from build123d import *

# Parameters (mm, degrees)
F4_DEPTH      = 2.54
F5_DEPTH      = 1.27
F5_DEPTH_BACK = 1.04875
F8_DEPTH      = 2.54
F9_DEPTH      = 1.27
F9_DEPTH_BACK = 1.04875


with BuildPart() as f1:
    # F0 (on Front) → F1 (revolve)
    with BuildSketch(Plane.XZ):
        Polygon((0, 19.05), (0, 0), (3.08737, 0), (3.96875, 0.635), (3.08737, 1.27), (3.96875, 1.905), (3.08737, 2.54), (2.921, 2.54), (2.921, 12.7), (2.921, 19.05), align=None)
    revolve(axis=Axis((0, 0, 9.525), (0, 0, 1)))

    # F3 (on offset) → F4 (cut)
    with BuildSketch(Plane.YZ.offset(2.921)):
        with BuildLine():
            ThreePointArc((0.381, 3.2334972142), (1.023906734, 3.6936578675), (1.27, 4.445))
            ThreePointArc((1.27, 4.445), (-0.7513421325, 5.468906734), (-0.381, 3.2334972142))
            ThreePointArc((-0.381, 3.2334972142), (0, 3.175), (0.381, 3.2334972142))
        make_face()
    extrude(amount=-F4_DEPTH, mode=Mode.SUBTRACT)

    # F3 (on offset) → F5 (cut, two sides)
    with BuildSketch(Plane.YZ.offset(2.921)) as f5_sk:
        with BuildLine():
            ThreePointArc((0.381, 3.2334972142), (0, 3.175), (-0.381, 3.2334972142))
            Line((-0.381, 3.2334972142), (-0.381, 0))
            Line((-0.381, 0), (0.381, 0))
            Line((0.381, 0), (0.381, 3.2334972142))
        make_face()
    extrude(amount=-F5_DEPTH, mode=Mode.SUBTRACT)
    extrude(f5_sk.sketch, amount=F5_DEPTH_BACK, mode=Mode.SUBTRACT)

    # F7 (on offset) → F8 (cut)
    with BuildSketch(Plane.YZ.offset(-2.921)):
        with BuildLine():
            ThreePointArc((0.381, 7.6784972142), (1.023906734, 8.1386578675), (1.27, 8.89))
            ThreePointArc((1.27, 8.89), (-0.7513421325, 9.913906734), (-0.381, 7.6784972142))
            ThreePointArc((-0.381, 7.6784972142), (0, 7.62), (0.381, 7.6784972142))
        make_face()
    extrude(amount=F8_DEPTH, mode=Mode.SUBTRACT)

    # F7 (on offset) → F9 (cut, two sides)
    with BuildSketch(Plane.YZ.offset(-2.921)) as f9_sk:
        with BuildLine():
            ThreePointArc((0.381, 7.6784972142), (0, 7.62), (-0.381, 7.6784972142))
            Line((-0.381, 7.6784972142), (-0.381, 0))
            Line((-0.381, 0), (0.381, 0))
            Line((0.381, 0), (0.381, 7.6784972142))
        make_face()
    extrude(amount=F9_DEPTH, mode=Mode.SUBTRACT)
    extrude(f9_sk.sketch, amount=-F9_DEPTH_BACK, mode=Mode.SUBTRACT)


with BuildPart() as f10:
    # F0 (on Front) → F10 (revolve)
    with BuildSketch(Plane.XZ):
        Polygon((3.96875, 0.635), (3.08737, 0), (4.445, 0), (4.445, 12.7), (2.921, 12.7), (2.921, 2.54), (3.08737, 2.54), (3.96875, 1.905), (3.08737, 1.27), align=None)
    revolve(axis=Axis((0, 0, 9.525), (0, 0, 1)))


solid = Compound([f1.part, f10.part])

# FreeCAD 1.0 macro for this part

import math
import FreeCAD as App
import Part
import Sketcher
from FreeCAD import Vector
Q = App.Units.Quantity

doc = App.newDocument("Part")
body = doc.addObject("PartDesign::Body", "Body")

sketch1 = doc.addObject("Sketcher::SketchObject", "Sketch")
body.addObject(sketch1)
sketch1.AttachmentSupport = (doc.XZ_Plane, [""])
sketch1.MapMode = "FlatFace"
sketch1.addGeometry([
    Part.LineSegment(Vector(0, 19.05, 0), Vector(0, 0, 0)),
    Part.LineSegment(Vector(0, 0, 0), Vector(3.09, 0, 0)),
    Part.LineSegment(Vector(3.09, 0, 0), Vector(3.97, 0.64, 0)),
    Part.LineSegment(Vector(3.97, 0.64, 0), Vector(3.09, 1.27, 0)),
    Part.LineSegment(Vector(3.09, 1.27, 0), Vector(3.97, 1.91, 0)),
    Part.LineSegment(Vector(3.97, 1.91, 0), Vector(3.09, 2.54, 0)),
    Part.LineSegment(Vector(3.09, 2.54, 0), Vector(2.92, 2.54, 0)),
    Part.LineSegment(Vector(2.92, 2.54, 0), Vector(2.92, 19.05, 0)),
    Part.LineSegment(Vector(2.92, 19.05, 0), Vector(0, 19.05, 0)),
], False)
sketch1.addConstraint([
    Sketcher.Constraint("Coincident", 0, 2, 1, 1),
    Sketcher.Constraint("Coincident", 1, 2, 2, 1),
    Sketcher.Constraint("Coincident", 2, 2, 3, 1),
    Sketcher.Constraint("Coincident", 3, 2, 4, 1),
    Sketcher.Constraint("Coincident", 4, 2, 5, 1),
    Sketcher.Constraint("Coincident", 5, 2, 6, 1),
    Sketcher.Constraint("Coincident", 6, 2, 7, 1),
    Sketcher.Constraint("Coincident", 7, 2, 8, 1),
    Sketcher.Constraint("Coincident", 8, 2, 0, 1),
    Sketcher.Constraint("Vertical", 0),
    Sketcher.Constraint("Horizontal", 1),
    Sketcher.Constraint("Horizontal", 6),
    Sketcher.Constraint("Vertical", 7),
    Sketcher.Constraint("Horizontal", 8),
    Sketcher.Constraint("Coincident", 0, 2, -1, 1),
    Sketcher.Constraint("Parallel", 2, 4),
    Sketcher.Constraint("Parallel", 3, 5),
    Sketcher.Constraint("Vertical", 1, 2, 3, 2),
    Sketcher.Constraint("Vertical", 2, 2, 4, 2),
    Sketcher.Constraint("Vertical", 3, 2, 5, 2),
    Sketcher.Constraint("Equal", 2, 3),
    Sketcher.Constraint("DistanceY", 0, 2, 0, 1, Q("0.75 in")),
    Sketcher.Constraint("DistanceY", 7, 1, 7, 2, Q("0.65 in")),
    Sketcher.Constraint("DistanceX", 8, 2, 8, 1, Q("0.115 in")),
    Sketcher.Constraint("DistanceX", -1, 1, 2, 2, Q("0.15625 in")),
    Sketcher.Constraint("DistanceX", 1, 2, 2, 2, Q("0.0347 in")),
])
revolution = doc.addObject("PartDesign::Revolution", "Revolution")
body.addObject(revolution)
revolution.Profile = sketch1
revolution.ReferenceAxis = (sketch1, ["V_Axis"])
revolution.Angle = 360

sketch2 = doc.addObject("Sketcher::SketchObject", "Sketch001")
body.addObject(sketch2)
sketch2.AttachmentSupport = (doc.YZ_Plane, [""])
sketch2.MapMode = "FlatFace"
sketch2.AttachmentOffset = App.Placement(Vector(0, 0, 0.115 * 25.4), App.Rotation())
sketch2.addGeometry([
    Part.ArcOfCircle(Part.Circle(Vector(0, 4.4, 0), Vector(0, 0, 1), 1.3), math.radians(-73), math.radians(253)),
    Part.ArcOfCircle(Part.Circle(Vector(0, 4.4, 0), Vector(0, 0, 1), 1.3), math.radians(-107), math.radians(-73)),
], False)
sketch2.addConstraint([
    Sketcher.Constraint("Tangent", 0, 1, 1, 2),
    Sketcher.Constraint("Coincident", 1, 1, 0, 2),
    Sketcher.Constraint("Symmetric", 0, 1, 1, 1, -2),
    Sketcher.Constraint("Radius", 0, Q("0.05 in")),
    Sketcher.Constraint("DistanceX", 1, 1, 0, 1, Q("0.03 in")),
    Sketcher.Constraint("DistanceY", -1, 1, 0, 3, Q("0.175 in")),
])
pocket1 = doc.addObject("PartDesign::Pocket", "Pocket")
body.addObject(pocket1)
pocket1.Profile = sketch2
pocket1.Length = Q("0.1 in")

sketch3 = doc.addObject("Sketcher::SketchObject", "Sketch002")
body.addObject(sketch3)
sketch3.AttachmentSupport = (doc.YZ_Plane, [""])
sketch3.MapMode = "FlatFace"
sketch3.AttachmentOffset = App.Placement(Vector(0, 0, 0.115 * 25.4), App.Rotation())
sketch3.addGeometry([
    Part.ArcOfCircle(Part.Circle(Vector(0, 4.4, 0), Vector(0, 0, 1), 1.3), math.radians(-107), math.radians(-73)),
    Part.LineSegment(Vector(-0.4, 3.2, 0), Vector(-0.4, 0, 0)),
    Part.LineSegment(Vector(-0.4, 0, 0), Vector(0.4, 0, 0)),
    Part.LineSegment(Vector(0.4, 0, 0), Vector(0.4, 3.2, 0)),
], False)
sketch3.addConstraint([
    Sketcher.Constraint("Coincident", 0, 1, 1, 1),
    Sketcher.Constraint("Coincident", 1, 2, 2, 1),
    Sketcher.Constraint("Coincident", 2, 2, 3, 1),
    Sketcher.Constraint("Coincident", 3, 2, 0, 2),
    Sketcher.Constraint("Vertical", 1),
    Sketcher.Constraint("Horizontal", 2),
    Sketcher.Constraint("Vertical", 3),
    Sketcher.Constraint("Symmetric", 1, 2, 2, 2, -1, 1),
    Sketcher.Constraint("PointOnObject", 0, 3, -2),
    Sketcher.Constraint("Radius", 0, Q("0.05 in")),
    Sketcher.Constraint("DistanceX", 2, 1, 2, 2, Q("0.03 in")),
    Sketcher.Constraint("DistanceY", -1, 1, 0, 3, Q("0.175 in")),
])
pocket2 = doc.addObject("PartDesign::Pocket", "Pocket001")
body.addObject(pocket2)
pocket2.Profile = sketch3
pocket2.Type = "TwoLengths"
pocket2.Length = Q("0.05 in")
pocket2.Length2 = 1.04875

sketch4 = doc.addObject("Sketcher::SketchObject", "Sketch003")
body.addObject(sketch4)
sketch4.AttachmentSupport = (doc.YZ_Plane, [""])
sketch4.MapMode = "FlatFace"
sketch4.AttachmentOffset = App.Placement(Vector(0, 0, -0.115 * 25.4), App.Rotation())
sketch4.addGeometry([
    Part.ArcOfCircle(Part.Circle(Vector(0, 8.9, 0), Vector(0, 0, 1), 1.3), math.radians(-73), math.radians(253)),
    Part.ArcOfCircle(Part.Circle(Vector(0, 8.9, 0), Vector(0, 0, 1), 1.3), math.radians(-107), math.radians(-73)),
], False)
sketch4.addConstraint([
    Sketcher.Constraint("Tangent", 0, 1, 1, 2),
    Sketcher.Constraint("Coincident", 1, 1, 0, 2),
    Sketcher.Constraint("Symmetric", 0, 1, 1, 1, -2),
    Sketcher.Constraint("Radius", 0, Q("0.05 in")),
    Sketcher.Constraint("DistanceY", -1, 1, 0, 3, Q("0.35 in")),
    Sketcher.Constraint("DistanceX", 1, 1, 0, 1, Q("0.03 in")),
])
pocket3 = doc.addObject("PartDesign::Pocket", "Pocket002")
body.addObject(pocket3)
pocket3.Profile = sketch4
pocket3.Length = Q("0.1 in")
pocket3.Reversed = True

sketch5 = doc.addObject("Sketcher::SketchObject", "Sketch004")
body.addObject(sketch5)
sketch5.AttachmentSupport = (doc.YZ_Plane, [""])
sketch5.MapMode = "FlatFace"
sketch5.AttachmentOffset = App.Placement(Vector(0, 0, -0.115 * 25.4), App.Rotation())
sketch5.addGeometry([
    Part.ArcOfCircle(Part.Circle(Vector(0, 8.9, 0), Vector(0, 0, 1), 1.3), math.radians(-107), math.radians(-73)),
    Part.LineSegment(Vector(-0.4, 7.7, 0), Vector(-0.4, 0, 0)),
    Part.LineSegment(Vector(-0.4, 0, 0), Vector(0.4, 0, 0)),
    Part.LineSegment(Vector(0.4, 0, 0), Vector(0.4, 7.7, 0)),
], False)
sketch5.addConstraint([
    Sketcher.Constraint("Coincident", 0, 1, 1, 1),
    Sketcher.Constraint("Coincident", 1, 2, 2, 1),
    Sketcher.Constraint("Coincident", 2, 2, 3, 1),
    Sketcher.Constraint("Coincident", 3, 2, 0, 2),
    Sketcher.Constraint("Vertical", 1),
    Sketcher.Constraint("Horizontal", 2),
    Sketcher.Constraint("Vertical", 3),
    Sketcher.Constraint("Symmetric", 1, 2, 2, 2, -1, 1),
    Sketcher.Constraint("PointOnObject", 0, 3, -2),
    Sketcher.Constraint("Radius", 0, Q("0.05 in")),
    Sketcher.Constraint("DistanceX", 2, 1, 2, 2, Q("0.03 in")),
    Sketcher.Constraint("DistanceY", -1, 1, 0, 3, Q("0.35 in")),
])
pocket4 = doc.addObject("PartDesign::Pocket", "Pocket003")
body.addObject(pocket4)
pocket4.Profile = sketch5
pocket4.Type = "TwoLengths"
pocket4.Length = Q("0.05 in")
pocket4.Length2 = 1.04875
pocket4.Reversed = True
body2 = doc.addObject("PartDesign::Body", "Body001")

sketch6 = doc.addObject("Sketcher::SketchObject", "Sketch005")
body2.addObject(sketch6)
sketch6.AttachmentSupport = (doc.getObject("XZ_Plane001"), [""])
sketch6.MapMode = "FlatFace"
sketch6.addGeometry([
    Part.LineSegment(Vector(3.97, 0.64, 0), Vector(3.09, 0, 0)),
    Part.LineSegment(Vector(3.09, 0, 0), Vector(4.45, 0, 0)),
    Part.LineSegment(Vector(4.45, 0, 0), Vector(4.45, 12.7, 0)),
    Part.LineSegment(Vector(4.45, 12.7, 0), Vector(2.92, 12.7, 0)),
    Part.LineSegment(Vector(2.92, 12.7, 0), Vector(2.92, 2.54, 0)),
    Part.LineSegment(Vector(2.92, 2.54, 0), Vector(3.09, 2.54, 0)),
    Part.LineSegment(Vector(3.09, 2.54, 0), Vector(3.97, 1.91, 0)),
    Part.LineSegment(Vector(3.97, 1.91, 0), Vector(3.09, 1.27, 0)),
    Part.LineSegment(Vector(3.09, 1.27, 0), Vector(3.97, 0.64, 0)),
], False)
sketch6.addConstraint([
    Sketcher.Constraint("Coincident", 0, 2, 1, 1),
    Sketcher.Constraint("Coincident", 1, 2, 2, 1),
    Sketcher.Constraint("Coincident", 2, 2, 3, 1),
    Sketcher.Constraint("Coincident", 3, 2, 4, 1),
    Sketcher.Constraint("Coincident", 4, 2, 5, 1),
    Sketcher.Constraint("Coincident", 5, 2, 6, 1),
    Sketcher.Constraint("Coincident", 6, 2, 7, 1),
    Sketcher.Constraint("Coincident", 7, 2, 8, 1),
    Sketcher.Constraint("Coincident", 8, 2, 0, 1),
    Sketcher.Constraint("Horizontal", 1),
    Sketcher.Constraint("Vertical", 2),
    Sketcher.Constraint("Horizontal", 3),
    Sketcher.Constraint("Vertical", 4),
    Sketcher.Constraint("Horizontal", 5),
    Sketcher.Constraint("PointOnObject", 0, 2, -1),
    Sketcher.Constraint("Parallel", 0, 7),
    Sketcher.Constraint("Parallel", 6, 8),
    Sketcher.Constraint("Vertical", 0, 2, 5, 2),
    Sketcher.Constraint("Vertical", 5, 2, 7, 2),
    Sketcher.Constraint("Vertical", 6, 2, 8, 2),
    Sketcher.Constraint("Equal", 0, 6),
    Sketcher.Constraint("DistanceY", 2, 1, 2, 2, Q("0.5 in")),
    Sketcher.Constraint("DistanceY", 4, 2, 4, 1, Q("0.4 in")),
    Sketcher.Constraint("DistanceX", 3, 2, 3, 1, Q("0.06 in")),
    Sketcher.Constraint("DistanceX", -1, 1, 1, 2, Q("0.175 in")),
    Sketcher.Constraint("DistanceX", -1, 1, 6, 2, Q("0.15625 in")),
    Sketcher.Constraint("DistanceX", 5, 2, 6, 2, Q("0.0347 in")),
])
revolution2 = doc.addObject("PartDesign::Revolution", "Revolution001")
body2.addObject(revolution2)
revolution2.Profile = sketch6
revolution2.ReferenceAxis = (sketch6, ["V_Axis"])
revolution2.Angle = 360

doc.recompute()
